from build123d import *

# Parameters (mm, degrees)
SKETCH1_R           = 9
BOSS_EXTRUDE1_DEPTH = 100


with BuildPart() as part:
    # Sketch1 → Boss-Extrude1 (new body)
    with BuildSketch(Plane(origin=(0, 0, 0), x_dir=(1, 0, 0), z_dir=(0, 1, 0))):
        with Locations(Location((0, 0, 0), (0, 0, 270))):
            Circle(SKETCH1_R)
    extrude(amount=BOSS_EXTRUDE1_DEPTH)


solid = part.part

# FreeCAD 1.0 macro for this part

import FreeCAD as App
import Part
import Sketcher
Q = App.Units.Quantity

doc = App.newDocument("Part")
body = doc.addObject("PartDesign::Body", "Body")

# Sketch on XZ plane
sketch1 = doc.addObject("Sketcher::SketchObject", "Sketch")
body.addObject(sketch1)
sketch1.AttachmentSupport = (doc.XZ_Plane, [""])
sketch1.MapMode = "FlatFace"
sketch1.addGeometry(Part.Circle(App.Vector(0, 0, 0), App.Vector(0, 0, 1), 9), False)
sketch1.addConstraint([
    Sketcher.Constraint("Coincident", 0, 3, -1, 1),
    Sketcher.Constraint("Diameter", 0, Q("18 mm")),
])
pad1 = doc.addObject("PartDesign::Pad", "Pad")
body.addObject(pad1)
pad1.Profile = sketch1
pad1.Length = 100
pad1.Reversed = True

doc.recompute()
